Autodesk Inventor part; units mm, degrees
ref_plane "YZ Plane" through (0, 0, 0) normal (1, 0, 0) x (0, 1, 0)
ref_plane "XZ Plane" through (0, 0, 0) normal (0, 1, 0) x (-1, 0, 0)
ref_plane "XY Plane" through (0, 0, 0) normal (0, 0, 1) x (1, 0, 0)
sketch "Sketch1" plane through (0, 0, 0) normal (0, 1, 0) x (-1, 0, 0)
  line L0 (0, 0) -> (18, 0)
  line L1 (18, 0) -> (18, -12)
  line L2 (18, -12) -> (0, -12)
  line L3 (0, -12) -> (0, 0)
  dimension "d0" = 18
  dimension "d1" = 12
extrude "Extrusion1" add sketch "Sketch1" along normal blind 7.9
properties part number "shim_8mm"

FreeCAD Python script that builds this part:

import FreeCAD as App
import Part
import Sketcher

V = App.Vector
Q = App.Units.Quantity


def add_polygon(sketch, points):
    """Adds a closed chain of lines whose ends are joined by coincident constraints."""
    first, n = sketch.GeometryCount, len(points)
    for a, b in zip(points, points[1:] + points[:1]):
        sketch.addGeometry(Part.LineSegment(App.Vector(*a, 0), App.Vector(*b, 0)), False)
    for i in range(n):
        sketch.addConstraint(Sketcher.Constraint("Coincident", first + i, 2, first + (i + 1) % n, 1))

doc = App.newDocument("Part")
body = doc.addObject("PartDesign::Body", "Body")

sketch1 = body.newObject("Sketcher::SketchObject", "Sketch")
sketch1.AttachmentSupport = (doc.getObject("XZ_Plane"), [""])
sketch1.MapMode = "FlatFace"
add_polygon(sketch1, [(-18, 0), (0, 0), (0, -12), (-18, -12)])
sketch1.addConstraint(Sketcher.Constraint("Horizontal", 0))
sketch1.addConstraint(Sketcher.Constraint("Vertical", 1))
sketch1.addConstraint(Sketcher.Constraint("Horizontal", 2))
sketch1.addConstraint(Sketcher.Constraint("Vertical", 3))
sketch1.addConstraint(Sketcher.Constraint("Coincident", 0, 2, -1, 1))
sketch1.addConstraint(Sketcher.Constraint("DistanceX", 0, 1, 0, 2, Q("18 mm")))
sketch1.addConstraint(Sketcher.Constraint("DistanceY", 1, 2, 1, 1, Q("12 mm")))
pad1 = body.newObject("PartDesign::Pad", "Pad")
pad1.Profile = sketch1
pad1.Length = 7.9
pad1.Reversed = True

doc.recompute()
